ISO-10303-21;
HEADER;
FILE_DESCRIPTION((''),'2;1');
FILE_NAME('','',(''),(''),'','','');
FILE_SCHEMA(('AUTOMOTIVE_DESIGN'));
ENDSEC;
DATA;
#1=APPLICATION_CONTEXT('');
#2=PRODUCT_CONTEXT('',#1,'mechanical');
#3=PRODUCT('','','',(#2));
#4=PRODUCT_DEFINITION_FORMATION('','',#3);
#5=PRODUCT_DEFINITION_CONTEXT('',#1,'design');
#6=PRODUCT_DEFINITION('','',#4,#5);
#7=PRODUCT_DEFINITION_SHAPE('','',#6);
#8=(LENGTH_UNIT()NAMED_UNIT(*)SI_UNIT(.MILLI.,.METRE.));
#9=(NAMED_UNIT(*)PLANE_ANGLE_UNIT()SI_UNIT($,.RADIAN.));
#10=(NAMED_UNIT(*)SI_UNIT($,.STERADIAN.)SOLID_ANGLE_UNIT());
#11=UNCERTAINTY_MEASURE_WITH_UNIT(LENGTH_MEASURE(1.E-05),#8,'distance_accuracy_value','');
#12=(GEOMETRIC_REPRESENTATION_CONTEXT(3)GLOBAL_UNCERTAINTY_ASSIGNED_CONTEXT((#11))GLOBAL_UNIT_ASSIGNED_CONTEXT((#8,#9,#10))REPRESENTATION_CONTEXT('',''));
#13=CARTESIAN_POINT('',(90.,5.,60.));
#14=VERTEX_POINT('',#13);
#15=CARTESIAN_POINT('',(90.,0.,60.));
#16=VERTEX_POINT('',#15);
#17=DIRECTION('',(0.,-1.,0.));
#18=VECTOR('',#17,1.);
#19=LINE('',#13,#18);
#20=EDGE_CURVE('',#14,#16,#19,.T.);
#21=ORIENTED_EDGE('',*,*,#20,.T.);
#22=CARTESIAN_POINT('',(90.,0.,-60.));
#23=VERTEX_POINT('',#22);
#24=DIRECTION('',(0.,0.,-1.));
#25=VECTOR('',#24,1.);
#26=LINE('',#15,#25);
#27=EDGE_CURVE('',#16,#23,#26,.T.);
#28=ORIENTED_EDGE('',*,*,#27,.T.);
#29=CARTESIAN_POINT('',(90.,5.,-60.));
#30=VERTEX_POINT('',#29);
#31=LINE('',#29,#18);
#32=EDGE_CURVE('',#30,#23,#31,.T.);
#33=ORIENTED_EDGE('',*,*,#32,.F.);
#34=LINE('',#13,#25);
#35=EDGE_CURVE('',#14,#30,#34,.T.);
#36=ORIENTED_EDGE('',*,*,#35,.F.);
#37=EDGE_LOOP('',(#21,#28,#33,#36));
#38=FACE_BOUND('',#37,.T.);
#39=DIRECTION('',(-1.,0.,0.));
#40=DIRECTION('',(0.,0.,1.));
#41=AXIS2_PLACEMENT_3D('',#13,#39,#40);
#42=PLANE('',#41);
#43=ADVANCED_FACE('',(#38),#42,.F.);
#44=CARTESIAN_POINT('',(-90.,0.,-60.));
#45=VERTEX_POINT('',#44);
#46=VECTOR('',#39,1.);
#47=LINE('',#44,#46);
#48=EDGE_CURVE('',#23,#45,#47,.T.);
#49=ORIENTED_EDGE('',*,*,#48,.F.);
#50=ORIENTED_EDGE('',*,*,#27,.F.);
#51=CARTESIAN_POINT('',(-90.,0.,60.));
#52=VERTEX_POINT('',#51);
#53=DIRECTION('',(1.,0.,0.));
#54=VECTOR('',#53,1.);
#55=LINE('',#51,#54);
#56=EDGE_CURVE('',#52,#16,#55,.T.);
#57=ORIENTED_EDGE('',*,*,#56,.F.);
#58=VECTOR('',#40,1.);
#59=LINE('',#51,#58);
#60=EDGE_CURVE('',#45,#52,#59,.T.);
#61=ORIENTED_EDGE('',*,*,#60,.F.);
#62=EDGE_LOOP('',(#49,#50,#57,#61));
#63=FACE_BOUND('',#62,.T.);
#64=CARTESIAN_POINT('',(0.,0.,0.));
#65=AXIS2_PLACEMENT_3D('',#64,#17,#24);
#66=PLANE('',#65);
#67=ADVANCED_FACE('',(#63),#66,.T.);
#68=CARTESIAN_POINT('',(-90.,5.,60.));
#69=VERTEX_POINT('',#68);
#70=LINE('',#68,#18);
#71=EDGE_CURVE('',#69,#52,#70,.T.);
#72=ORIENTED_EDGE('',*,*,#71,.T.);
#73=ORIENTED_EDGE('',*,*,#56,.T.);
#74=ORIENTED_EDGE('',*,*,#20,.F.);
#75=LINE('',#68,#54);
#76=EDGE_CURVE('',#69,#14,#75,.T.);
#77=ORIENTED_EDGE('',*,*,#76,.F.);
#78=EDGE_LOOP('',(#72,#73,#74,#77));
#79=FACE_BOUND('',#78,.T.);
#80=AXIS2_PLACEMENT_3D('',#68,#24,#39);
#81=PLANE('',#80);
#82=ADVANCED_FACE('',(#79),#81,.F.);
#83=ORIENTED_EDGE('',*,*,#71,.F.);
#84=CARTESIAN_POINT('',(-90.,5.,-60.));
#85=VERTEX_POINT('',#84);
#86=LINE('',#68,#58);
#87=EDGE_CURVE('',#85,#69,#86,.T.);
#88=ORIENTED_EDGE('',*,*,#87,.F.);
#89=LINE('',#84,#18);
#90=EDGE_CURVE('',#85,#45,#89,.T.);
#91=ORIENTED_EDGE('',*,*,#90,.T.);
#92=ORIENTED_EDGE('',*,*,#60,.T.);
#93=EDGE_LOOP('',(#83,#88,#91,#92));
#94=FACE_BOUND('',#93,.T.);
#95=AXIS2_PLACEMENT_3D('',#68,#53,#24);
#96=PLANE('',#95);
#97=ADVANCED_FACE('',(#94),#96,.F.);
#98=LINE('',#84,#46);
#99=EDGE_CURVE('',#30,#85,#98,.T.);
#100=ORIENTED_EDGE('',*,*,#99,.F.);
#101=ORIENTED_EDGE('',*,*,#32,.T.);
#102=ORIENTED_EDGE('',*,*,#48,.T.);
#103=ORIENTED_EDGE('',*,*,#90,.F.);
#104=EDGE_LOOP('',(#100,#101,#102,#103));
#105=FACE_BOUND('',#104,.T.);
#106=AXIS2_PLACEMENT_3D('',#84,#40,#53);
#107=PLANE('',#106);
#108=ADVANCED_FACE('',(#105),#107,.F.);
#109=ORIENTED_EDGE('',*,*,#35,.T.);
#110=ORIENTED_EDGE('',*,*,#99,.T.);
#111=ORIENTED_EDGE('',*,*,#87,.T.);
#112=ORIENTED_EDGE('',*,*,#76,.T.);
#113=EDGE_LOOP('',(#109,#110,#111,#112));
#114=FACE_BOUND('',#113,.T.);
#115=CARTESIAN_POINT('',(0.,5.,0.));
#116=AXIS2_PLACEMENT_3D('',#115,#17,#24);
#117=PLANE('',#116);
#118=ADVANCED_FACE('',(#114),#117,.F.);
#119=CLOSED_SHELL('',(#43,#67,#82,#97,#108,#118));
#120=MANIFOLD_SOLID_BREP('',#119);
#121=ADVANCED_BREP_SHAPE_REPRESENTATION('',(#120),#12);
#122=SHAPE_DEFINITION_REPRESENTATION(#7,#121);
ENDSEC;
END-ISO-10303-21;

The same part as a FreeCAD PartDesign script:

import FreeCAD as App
import Part
import Sketcher
from FreeCAD import Vector

doc = App.newDocument("Part")
body = doc.addObject("PartDesign::Body", "Body")

sketch1 = body.newObject("Sketcher::SketchObject", "Sketch")
sketch1.AttachmentSupport = (doc.getObject("XZ_Plane"), [""])
sketch1.MapMode = "FlatFace"
sketch1.addGeometry([
    Part.LineSegment(Vector(-90, -60, 0), Vector(-90, 60, 0)),
    Part.LineSegment(Vector(-90, 60, 0), Vector(90, 60, 0)),
    Part.LineSegment(Vector(90, 60, 0), Vector(90, -60, 0)),
    Part.LineSegment(Vector(90, -60, 0), Vector(-90, -60, 0)),
], False)
sketch1.addConstraint([
    Sketcher.Constraint("Coincident", 0, 2, 1, 1),
    Sketcher.Constraint("Coincident", 1, 2, 2, 1),
    Sketcher.Constraint("Coincident", 2, 2, 3, 1),
    Sketcher.Constraint("Coincident", 3, 2, 0, 1),
    Sketcher.Constraint("Vertical", 0),
    Sketcher.Constraint("Horizontal", 1),
    Sketcher.Constraint("Vertical", 2),
    Sketcher.Constraint("Horizontal", 3),
    Sketcher.Constraint("Symmetric", 0, 2, 2, 2, -1, 1),
    Sketcher.Constraint("DistanceX", 1, 1, 1, 2, 180.0),
    Sketcher.Constraint("DistanceY", 0, 1, 0, 2, 120.0),
])
pad1 = body.newObject("PartDesign::Pad", "Pad")
pad1.Profile = sketch1
pad1.Length = 5
pad1.Reversed = True

doc.recompute()
